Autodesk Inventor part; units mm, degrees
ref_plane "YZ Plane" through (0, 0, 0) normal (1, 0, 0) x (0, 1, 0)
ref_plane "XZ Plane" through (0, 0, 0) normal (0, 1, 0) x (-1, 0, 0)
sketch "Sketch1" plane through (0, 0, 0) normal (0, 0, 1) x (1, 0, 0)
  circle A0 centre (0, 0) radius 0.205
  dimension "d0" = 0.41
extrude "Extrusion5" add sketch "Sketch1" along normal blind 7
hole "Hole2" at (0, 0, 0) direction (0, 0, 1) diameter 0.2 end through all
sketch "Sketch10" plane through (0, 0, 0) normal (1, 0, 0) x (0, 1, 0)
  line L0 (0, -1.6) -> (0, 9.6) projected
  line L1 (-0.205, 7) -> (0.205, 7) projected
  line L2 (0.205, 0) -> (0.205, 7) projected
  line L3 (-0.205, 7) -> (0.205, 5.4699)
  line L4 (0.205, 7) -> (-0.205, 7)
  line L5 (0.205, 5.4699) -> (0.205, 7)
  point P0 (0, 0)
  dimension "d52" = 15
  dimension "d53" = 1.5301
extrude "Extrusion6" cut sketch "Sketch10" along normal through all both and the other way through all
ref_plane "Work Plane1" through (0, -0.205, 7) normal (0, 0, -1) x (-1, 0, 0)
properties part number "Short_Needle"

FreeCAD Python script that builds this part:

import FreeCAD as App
import Part
import Sketcher
from FreeCAD import Vector
Q = App.Units.Quantity


def add_polygon(sketch, points):
    """Adds a closed chain of lines whose ends are joined by coincident constraints."""
    first, n = sketch.GeometryCount, len(points)
    for a, b in zip(points, points[1:] + points[:1]):
        sketch.addGeometry(Part.LineSegment(App.Vector(*a, 0), App.Vector(*b, 0)), False)
    for i in range(n):
        sketch.addConstraint(Sketcher.Constraint("Coincident", first + i, 2, first + (i + 1) % n, 1))

doc = App.newDocument("Part")
body = doc.addObject("PartDesign::Body", "Body")

# Sketch on XY plane
sketch1 = body.newObject("Sketcher::SketchObject", "Sketch")
sketch1.AttachmentSupport = (doc.getObject("XY_Plane"), [""])
sketch1.MapMode = "FlatFace"
sketch1.addGeometry(Part.Circle(Vector(0, 0, 0), Vector(0, 0, 1), 0.2), False)
sketch1.addConstraint(Sketcher.Constraint("Coincident", 0, 3, -1, 1))
sketch1.addConstraint(Sketcher.Constraint("Diameter", 0, Q("0.41 mm")))
pad1 = body.newObject("PartDesign::Pad", "Pad")
pad1.Profile = sketch1
pad1.Length = 7

# Sketch on XY plane
sketch2 = body.newObject("Sketcher::SketchObject", "Sketch001")
sketch2.AttachmentSupport = (doc.getObject("XY_Plane"), [""])
sketch2.MapMode = "FlatFace"
sketch2.addGeometry(Part.Circle(Vector(0, 0, 0), Vector(0, 0, 1), 0.1), False)
sketch2.addConstraint(Sketcher.Constraint("Coincident", 0, 3, -1, 1))
sketch2.addConstraint(Sketcher.Constraint("Diameter", 0, Q("0.2 mm")))
doc.recompute()
hole = body.newObject("PartDesign::Hole", "Hole")
hole.Profile = sketch2
hole.ThreadType = "None"
hole.Diameter = 0.2
hole.DepthType = "ThroughAll"
hole.Reversed = True

# Sketch on YZ plane
sketch3 = body.newObject("Sketcher::SketchObject", "Sketch002")
sketch3.AttachmentSupport = (doc.getObject("YZ_Plane"), [""])
sketch3.MapMode = "FlatFace"
add_polygon(sketch3, [(-0.2, 7), (0.2, 5.47), (0.2, 7)])  # lines 0-2
sketch3.addConstraint(Sketcher.Constraint("Vertical", 1))
sketch3.addConstraint(Sketcher.Constraint("Horizontal", 2))
sketch3.addConstraint(Sketcher.Constraint("DistanceY", 1, 1, 1, 2, Q("1.53 mm")))
sketch3.addConstraint(Sketcher.Constraint("Angle", 0, Q("-74.9996 deg")))
sketch3.addConstraint(Sketcher.Constraint("DistanceY", -1, 1, 1, 2, Q("7 mm")))
sketch3.addConstraint(Sketcher.Constraint("DistanceX", -1, 1, 0, 2, Q("0.205 mm")))
pocket1 = body.newObject("PartDesign::Pocket", "Pocket")
pocket1.Profile = sketch3
pocket1.Type = "ThroughAll"
pocket1.Midplane = True

doc.recompute()
